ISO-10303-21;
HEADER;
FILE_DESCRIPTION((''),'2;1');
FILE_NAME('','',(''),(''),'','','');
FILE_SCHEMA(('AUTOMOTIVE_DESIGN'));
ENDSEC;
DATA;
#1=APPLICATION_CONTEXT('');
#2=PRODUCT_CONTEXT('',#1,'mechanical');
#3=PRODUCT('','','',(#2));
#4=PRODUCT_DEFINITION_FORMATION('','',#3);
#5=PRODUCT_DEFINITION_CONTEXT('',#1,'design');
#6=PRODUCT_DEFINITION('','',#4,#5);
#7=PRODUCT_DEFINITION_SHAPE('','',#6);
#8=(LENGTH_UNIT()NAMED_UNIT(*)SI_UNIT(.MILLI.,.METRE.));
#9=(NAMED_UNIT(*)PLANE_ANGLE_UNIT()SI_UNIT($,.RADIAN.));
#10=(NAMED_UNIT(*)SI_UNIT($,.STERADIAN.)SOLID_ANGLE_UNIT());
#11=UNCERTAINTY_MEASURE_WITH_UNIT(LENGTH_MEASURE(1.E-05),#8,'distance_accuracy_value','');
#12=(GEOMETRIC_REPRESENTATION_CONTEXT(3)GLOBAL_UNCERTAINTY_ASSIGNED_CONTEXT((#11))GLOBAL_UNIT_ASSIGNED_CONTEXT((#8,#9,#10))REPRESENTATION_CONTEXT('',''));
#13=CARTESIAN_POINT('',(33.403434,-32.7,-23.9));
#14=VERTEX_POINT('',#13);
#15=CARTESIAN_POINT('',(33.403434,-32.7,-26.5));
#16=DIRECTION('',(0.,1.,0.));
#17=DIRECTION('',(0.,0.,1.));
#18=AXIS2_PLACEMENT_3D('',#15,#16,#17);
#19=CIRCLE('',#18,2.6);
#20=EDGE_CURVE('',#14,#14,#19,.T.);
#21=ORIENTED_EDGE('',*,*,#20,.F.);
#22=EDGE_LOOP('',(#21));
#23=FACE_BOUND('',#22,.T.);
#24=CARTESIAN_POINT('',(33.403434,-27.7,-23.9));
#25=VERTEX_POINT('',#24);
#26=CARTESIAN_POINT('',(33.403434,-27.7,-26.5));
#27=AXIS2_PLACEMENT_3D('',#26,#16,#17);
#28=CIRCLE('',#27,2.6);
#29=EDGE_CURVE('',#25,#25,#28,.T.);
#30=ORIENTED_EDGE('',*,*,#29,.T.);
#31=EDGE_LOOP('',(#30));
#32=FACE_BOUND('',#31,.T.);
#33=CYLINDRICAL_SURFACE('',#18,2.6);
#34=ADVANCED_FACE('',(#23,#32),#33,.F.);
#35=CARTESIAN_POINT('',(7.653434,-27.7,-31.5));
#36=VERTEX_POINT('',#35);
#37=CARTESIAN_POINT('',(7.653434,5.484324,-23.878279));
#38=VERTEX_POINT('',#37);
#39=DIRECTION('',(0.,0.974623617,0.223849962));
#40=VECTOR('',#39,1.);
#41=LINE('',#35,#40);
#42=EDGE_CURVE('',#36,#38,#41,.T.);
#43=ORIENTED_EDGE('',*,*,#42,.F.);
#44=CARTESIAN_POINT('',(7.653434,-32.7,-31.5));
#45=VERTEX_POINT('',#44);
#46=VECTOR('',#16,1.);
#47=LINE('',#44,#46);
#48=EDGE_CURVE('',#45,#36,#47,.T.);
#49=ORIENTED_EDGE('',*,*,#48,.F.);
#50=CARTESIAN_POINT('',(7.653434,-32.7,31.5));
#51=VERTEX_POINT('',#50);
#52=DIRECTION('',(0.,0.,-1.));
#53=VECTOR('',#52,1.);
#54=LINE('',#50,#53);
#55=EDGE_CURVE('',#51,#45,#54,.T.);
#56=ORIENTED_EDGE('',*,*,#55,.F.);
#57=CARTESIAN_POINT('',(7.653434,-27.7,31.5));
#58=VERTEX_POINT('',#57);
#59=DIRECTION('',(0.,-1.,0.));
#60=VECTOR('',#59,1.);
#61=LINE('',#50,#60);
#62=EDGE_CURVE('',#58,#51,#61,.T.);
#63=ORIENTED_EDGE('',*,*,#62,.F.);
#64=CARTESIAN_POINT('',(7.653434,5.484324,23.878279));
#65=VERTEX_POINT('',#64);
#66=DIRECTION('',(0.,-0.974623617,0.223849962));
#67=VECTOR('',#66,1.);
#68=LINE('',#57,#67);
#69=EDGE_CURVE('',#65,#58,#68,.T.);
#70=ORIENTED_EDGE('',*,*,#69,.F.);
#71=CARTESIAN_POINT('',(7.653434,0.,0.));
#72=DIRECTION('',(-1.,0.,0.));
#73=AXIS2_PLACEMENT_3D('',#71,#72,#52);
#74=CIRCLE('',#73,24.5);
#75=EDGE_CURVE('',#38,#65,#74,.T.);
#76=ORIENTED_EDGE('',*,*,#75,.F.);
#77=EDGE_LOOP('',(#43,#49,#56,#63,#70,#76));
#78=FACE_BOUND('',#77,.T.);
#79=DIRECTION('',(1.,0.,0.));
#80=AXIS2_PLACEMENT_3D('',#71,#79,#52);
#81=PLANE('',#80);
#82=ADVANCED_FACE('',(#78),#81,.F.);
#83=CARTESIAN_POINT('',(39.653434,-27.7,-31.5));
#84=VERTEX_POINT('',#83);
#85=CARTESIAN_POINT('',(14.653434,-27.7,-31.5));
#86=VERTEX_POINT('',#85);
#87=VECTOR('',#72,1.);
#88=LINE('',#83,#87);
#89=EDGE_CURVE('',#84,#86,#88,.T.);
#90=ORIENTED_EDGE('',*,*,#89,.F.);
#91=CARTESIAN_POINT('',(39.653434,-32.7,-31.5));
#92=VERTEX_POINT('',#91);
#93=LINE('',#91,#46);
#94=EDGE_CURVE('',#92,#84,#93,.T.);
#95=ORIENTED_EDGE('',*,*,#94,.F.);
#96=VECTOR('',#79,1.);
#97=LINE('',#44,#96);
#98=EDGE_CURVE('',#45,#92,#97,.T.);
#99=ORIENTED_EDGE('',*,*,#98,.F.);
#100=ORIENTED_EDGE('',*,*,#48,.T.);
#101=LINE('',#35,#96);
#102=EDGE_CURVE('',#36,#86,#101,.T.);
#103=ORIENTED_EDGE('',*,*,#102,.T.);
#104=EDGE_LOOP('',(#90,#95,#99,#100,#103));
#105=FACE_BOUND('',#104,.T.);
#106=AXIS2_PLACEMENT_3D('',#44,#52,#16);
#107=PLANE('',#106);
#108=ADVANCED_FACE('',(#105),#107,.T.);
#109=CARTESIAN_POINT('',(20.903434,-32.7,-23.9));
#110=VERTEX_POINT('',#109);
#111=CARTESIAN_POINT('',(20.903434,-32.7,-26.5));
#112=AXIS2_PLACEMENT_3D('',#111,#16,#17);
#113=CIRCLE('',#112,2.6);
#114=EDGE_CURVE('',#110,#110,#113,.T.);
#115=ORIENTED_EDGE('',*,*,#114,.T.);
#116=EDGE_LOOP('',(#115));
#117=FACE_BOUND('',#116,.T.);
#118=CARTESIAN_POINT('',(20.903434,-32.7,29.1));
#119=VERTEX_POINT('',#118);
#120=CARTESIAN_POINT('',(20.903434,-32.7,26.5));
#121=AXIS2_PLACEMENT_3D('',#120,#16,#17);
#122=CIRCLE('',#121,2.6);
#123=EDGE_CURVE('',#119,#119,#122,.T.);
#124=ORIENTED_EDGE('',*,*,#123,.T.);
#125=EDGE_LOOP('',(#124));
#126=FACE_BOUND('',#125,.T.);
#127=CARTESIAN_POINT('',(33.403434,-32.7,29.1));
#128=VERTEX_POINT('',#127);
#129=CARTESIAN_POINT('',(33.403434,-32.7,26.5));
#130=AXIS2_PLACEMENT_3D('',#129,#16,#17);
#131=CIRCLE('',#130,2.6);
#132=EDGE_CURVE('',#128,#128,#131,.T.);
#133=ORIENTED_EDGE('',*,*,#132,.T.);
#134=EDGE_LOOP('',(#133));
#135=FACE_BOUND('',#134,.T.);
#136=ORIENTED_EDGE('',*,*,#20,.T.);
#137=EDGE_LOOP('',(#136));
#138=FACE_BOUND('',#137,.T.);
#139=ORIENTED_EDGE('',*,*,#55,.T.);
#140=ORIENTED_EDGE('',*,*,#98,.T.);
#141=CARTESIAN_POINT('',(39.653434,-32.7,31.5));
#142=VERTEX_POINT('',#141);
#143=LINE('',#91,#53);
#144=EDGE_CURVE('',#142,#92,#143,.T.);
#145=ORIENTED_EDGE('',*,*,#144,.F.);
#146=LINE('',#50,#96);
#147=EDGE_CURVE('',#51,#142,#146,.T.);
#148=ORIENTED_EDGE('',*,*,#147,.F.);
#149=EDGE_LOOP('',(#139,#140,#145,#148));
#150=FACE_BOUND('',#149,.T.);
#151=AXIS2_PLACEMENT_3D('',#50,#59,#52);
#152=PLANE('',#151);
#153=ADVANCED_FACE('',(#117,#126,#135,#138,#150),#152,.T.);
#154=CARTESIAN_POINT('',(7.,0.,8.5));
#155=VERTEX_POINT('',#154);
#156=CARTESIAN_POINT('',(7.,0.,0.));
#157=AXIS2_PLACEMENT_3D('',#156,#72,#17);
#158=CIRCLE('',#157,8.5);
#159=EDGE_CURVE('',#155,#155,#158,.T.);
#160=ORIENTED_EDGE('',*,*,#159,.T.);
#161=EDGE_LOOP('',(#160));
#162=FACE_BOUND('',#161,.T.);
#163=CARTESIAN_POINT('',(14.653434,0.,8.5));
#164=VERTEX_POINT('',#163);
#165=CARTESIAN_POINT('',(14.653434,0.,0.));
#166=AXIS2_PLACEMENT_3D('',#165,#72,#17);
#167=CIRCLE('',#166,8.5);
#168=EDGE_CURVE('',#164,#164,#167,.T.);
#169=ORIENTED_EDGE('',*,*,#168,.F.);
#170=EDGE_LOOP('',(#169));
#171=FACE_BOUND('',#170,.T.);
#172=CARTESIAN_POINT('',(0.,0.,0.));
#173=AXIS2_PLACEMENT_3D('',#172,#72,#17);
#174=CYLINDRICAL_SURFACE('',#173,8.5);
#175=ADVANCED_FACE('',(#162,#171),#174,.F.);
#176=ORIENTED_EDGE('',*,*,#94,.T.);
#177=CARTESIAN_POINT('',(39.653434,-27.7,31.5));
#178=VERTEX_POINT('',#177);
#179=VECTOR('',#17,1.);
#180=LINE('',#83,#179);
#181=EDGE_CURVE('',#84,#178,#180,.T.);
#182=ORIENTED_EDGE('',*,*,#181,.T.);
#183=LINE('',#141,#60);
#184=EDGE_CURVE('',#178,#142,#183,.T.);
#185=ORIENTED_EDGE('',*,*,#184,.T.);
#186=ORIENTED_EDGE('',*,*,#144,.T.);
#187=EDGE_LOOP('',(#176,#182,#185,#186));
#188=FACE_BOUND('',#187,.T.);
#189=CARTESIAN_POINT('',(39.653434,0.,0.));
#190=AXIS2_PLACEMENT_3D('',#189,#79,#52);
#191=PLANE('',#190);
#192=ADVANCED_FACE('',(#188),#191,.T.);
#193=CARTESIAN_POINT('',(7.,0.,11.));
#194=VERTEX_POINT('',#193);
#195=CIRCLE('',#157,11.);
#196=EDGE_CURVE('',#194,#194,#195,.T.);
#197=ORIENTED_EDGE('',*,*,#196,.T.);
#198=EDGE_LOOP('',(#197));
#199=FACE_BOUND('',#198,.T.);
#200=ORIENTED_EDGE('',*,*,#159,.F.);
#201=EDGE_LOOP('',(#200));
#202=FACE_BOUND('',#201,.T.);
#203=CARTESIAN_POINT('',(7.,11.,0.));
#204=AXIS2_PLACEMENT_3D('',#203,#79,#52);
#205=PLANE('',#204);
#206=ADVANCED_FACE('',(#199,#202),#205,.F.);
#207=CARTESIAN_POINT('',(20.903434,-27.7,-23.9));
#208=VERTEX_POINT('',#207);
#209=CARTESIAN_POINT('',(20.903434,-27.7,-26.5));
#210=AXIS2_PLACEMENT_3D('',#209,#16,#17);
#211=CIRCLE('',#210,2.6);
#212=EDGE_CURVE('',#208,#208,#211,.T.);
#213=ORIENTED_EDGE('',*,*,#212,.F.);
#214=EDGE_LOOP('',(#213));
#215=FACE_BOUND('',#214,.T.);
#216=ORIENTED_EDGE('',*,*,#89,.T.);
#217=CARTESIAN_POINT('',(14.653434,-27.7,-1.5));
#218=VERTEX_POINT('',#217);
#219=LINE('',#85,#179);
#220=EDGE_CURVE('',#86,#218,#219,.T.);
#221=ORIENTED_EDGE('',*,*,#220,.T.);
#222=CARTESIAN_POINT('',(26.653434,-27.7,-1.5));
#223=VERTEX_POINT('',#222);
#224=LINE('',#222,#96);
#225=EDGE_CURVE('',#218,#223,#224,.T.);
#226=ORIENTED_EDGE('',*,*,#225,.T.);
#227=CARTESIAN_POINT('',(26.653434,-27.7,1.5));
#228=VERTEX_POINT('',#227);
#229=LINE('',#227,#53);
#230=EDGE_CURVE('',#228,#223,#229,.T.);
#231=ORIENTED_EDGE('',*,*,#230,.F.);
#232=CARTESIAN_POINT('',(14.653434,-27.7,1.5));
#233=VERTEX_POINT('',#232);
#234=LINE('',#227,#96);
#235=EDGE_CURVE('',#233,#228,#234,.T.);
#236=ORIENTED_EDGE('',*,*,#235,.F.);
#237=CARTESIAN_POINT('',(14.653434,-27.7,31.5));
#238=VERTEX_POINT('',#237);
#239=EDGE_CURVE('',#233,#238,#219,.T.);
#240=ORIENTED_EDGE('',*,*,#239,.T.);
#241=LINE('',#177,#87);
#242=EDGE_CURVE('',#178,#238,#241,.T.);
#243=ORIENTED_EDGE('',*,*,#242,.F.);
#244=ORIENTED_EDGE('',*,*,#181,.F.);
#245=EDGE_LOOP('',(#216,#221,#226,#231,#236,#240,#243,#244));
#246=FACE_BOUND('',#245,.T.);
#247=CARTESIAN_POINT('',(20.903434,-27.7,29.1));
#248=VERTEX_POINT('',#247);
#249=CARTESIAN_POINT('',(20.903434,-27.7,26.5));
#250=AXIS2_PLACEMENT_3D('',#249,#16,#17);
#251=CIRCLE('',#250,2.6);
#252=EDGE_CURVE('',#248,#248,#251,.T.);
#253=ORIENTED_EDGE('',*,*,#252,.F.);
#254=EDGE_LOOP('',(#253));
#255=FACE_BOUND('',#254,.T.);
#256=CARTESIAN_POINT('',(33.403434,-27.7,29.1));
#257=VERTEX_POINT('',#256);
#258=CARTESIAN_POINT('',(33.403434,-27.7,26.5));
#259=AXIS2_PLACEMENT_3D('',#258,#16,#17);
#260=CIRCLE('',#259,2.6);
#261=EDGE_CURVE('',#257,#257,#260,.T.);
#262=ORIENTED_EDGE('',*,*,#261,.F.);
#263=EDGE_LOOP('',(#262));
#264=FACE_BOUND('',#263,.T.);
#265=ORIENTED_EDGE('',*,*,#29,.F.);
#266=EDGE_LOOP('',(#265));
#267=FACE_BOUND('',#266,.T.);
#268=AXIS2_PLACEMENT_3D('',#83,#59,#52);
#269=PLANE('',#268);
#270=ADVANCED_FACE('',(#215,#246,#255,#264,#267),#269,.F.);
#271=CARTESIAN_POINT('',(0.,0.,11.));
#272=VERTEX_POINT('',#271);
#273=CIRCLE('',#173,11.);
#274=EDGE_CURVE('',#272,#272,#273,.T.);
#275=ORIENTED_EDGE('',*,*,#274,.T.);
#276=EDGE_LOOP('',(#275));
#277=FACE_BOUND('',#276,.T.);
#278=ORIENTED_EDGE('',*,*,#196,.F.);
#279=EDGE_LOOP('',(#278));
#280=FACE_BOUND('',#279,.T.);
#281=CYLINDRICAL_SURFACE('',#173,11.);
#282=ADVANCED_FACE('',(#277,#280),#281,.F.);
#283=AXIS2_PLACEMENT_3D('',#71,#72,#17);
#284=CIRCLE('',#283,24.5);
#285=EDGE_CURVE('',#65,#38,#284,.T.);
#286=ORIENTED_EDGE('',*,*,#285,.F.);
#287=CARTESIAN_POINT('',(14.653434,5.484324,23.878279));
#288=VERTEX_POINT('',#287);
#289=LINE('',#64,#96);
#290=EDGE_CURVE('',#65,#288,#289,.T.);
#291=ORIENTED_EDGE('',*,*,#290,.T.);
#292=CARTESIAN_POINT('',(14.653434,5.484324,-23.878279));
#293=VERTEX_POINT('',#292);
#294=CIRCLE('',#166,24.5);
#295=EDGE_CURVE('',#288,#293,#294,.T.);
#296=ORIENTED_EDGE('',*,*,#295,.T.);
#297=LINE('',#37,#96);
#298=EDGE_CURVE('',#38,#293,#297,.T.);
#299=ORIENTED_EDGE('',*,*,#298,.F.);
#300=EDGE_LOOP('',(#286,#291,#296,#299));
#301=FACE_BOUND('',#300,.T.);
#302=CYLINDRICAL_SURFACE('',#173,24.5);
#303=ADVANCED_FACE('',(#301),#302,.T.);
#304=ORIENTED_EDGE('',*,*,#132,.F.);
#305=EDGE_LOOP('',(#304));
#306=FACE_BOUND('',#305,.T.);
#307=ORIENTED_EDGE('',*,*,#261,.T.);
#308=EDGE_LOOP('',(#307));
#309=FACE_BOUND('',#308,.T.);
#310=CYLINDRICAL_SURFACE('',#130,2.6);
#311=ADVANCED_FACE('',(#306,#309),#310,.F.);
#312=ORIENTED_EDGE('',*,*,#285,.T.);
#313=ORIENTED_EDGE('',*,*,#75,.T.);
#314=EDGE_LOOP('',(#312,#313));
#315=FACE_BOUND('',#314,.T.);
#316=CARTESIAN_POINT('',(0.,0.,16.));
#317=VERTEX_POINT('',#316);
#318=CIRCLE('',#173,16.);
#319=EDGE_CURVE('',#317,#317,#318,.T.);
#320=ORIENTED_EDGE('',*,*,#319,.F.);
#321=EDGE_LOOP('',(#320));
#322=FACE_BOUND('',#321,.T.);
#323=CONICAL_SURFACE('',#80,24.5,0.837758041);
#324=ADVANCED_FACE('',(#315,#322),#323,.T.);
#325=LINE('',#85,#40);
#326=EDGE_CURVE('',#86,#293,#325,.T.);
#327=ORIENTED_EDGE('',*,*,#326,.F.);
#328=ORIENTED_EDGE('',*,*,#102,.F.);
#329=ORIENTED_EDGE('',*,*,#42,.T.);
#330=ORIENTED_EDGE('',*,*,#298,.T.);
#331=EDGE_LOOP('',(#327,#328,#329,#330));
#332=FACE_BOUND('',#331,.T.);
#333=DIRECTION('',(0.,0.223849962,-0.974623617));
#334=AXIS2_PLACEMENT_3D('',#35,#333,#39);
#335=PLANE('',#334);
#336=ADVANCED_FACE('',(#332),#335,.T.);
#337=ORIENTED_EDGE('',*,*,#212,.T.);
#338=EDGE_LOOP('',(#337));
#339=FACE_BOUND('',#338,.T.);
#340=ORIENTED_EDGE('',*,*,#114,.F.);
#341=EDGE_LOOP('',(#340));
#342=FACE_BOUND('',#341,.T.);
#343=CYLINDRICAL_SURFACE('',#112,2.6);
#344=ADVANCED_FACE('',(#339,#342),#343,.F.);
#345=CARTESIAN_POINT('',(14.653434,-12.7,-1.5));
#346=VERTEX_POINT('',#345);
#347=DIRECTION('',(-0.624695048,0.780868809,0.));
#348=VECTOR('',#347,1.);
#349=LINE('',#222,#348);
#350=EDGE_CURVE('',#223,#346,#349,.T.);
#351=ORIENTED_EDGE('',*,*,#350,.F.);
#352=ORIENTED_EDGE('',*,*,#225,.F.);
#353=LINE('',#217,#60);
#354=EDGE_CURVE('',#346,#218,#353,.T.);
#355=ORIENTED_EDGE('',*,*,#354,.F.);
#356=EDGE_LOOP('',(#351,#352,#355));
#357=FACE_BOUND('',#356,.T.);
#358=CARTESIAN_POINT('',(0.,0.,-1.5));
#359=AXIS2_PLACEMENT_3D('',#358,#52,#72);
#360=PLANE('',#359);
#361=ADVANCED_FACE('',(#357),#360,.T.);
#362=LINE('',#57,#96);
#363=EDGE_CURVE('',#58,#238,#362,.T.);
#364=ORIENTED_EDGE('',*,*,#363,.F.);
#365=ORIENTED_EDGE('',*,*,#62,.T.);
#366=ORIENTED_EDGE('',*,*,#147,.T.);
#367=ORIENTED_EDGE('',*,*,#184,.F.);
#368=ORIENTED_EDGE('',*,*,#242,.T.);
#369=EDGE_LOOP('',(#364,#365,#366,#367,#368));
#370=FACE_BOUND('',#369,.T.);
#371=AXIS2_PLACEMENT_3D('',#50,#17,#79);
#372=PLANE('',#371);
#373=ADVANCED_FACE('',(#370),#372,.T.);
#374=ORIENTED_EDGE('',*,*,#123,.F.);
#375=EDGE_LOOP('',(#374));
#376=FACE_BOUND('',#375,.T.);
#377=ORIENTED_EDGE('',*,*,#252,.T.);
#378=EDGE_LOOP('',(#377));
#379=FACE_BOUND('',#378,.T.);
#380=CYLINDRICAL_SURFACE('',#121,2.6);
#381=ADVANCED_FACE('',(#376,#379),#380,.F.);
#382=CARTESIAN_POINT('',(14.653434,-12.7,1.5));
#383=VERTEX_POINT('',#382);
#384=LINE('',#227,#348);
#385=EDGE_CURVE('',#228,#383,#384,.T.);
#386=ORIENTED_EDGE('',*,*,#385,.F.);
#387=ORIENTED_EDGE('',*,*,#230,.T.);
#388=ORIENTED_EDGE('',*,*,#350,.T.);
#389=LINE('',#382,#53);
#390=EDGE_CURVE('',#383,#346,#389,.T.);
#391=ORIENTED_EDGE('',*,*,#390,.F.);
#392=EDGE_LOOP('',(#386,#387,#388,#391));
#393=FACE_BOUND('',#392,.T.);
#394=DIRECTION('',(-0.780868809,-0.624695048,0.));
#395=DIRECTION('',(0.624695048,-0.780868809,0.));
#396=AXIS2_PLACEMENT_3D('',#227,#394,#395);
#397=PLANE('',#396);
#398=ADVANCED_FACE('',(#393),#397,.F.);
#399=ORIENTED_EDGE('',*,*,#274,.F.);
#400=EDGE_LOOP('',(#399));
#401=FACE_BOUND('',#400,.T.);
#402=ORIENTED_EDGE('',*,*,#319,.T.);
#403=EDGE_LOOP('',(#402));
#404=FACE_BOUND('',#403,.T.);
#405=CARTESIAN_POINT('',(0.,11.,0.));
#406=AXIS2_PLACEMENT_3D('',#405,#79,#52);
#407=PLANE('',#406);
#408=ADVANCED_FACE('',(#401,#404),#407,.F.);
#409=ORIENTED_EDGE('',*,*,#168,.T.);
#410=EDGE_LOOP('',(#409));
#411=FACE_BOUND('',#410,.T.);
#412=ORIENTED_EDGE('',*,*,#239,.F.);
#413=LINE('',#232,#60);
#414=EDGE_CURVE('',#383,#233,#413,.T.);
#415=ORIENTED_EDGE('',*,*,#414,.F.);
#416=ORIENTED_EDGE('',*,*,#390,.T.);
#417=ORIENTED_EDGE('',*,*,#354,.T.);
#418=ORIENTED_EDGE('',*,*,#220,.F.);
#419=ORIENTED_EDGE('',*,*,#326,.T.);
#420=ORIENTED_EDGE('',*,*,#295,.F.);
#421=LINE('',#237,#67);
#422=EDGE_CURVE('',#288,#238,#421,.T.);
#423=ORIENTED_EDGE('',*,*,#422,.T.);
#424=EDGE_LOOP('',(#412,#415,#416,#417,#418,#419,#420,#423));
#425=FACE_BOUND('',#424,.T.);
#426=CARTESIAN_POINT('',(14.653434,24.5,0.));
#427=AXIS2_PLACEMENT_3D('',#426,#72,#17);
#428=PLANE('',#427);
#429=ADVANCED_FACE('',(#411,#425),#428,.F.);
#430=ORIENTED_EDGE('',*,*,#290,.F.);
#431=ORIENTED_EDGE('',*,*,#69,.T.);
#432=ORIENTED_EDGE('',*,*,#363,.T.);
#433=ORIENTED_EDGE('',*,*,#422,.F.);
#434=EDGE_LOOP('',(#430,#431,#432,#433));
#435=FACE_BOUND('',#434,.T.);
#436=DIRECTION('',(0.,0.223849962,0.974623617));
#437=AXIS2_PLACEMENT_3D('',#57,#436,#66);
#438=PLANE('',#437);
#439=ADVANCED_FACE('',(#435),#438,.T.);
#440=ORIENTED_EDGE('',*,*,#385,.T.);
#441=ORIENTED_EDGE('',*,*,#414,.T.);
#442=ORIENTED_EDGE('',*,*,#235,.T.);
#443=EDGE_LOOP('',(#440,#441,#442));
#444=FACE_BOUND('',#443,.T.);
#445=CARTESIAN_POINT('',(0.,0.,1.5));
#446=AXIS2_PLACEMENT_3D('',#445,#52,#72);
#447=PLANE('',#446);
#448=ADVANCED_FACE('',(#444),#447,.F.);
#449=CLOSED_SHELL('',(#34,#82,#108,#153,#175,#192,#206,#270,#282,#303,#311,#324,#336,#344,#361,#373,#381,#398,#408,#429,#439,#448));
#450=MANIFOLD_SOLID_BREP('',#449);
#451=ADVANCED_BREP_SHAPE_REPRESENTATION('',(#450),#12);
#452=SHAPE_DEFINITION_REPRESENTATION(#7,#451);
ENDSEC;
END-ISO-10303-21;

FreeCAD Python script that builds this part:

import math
import FreeCAD as App
import Part
import Sketcher
Q = App.Units.Quantity


def add_polygon(sketch, points):
    """Adds a closed chain of lines whose ends are joined by coincident constraints."""
    first, n = sketch.GeometryCount, len(points)
    for a, b in zip(points, points[1:] + points[:1]):
        sketch.addGeometry(Part.LineSegment(App.Vector(*a, 0), App.Vector(*b, 0)), False)
    for i in range(n):
        sketch.addConstraint(Sketcher.Constraint("Coincident", first + i, 2, first + (i + 1) % n, 1))

doc = App.newDocument("Part")
body = doc.addObject("PartDesign::Body", "Body")

sketch1 = body.newObject("Sketcher::SketchObject", "Sketch")
sketch1.AttachmentSupport = (doc.getObject("XY_Plane"), [""])
sketch1.MapMode = "FlatFace"
add_polygon(sketch1, [(0, 11), (7, 11), (7, 8.5), (14.653434, 8.5), (14.653434, 24.5), (7.653434, 24.5), (0, 16)])
sketch1.addConstraint([
    Sketcher.Constraint("Horizontal", 0),
    Sketcher.Constraint("Vertical", 1),
    Sketcher.Constraint("Horizontal", 2),
    Sketcher.Constraint("Vertical", 3),
    Sketcher.Constraint("Horizontal", 4),
    Sketcher.Constraint("Vertical", 6),
    Sketcher.Constraint("PointOnObject", 5, 2, -2),
    Sketcher.Constraint("Equal", 0, 4),
    Sketcher.Constraint("DistanceX", 0, 1, 0, 2, 7.0),
    Sketcher.Constraint("DistanceY", 3, 1, 3, 2, 16.0),
    Sketcher.Constraint("DistanceY", 6, 2, 6, 1, 5.0),
    Sketcher.Constraint("Angle", 5, Q("-132 deg")),
    Sketcher.Constraint("DistanceY", 1, 2, 1, 1, 2.5),
    Sketcher.Constraint("DistanceY", -1, 1, 0, 2, 11.0),
])
revolution = body.newObject("PartDesign::Revolution", "Revolution")
revolution.Profile = sketch1
revolution.ReferenceAxis = (sketch1, ["H_Axis"])
revolution.Angle = 360

sketch2 = body.newObject("Sketcher::SketchObject", "Sketch001")
sketch2.AttachmentSupport = (doc.getObject("YZ_Plane"), [""])
sketch2.MapMode = "FlatFace"
sketch2.AttachmentOffset = App.Placement(App.Vector(0, 0, 7.653434), App.Rotation())
sketch2.addGeometry([
    Part.LineSegment(App.Vector(-32.7, 31.5, 0), App.Vector(-32.7, -31.5, 0)),
    Part.LineSegment(App.Vector(-32.7, -31.5, 0), App.Vector(-27.7, -31.5, 0)),
    Part.LineSegment(App.Vector(-27.7, -31.5, 0), App.Vector(5.484324, -23.878279, 0)),
    Part.ArcOfCircle(Part.Circle(App.Vector(0, 0, 0), App.Vector(0, 0, 1), 24.5), math.radians(77.064739), math.radians(282.935261)),
    Part.LineSegment(App.Vector(5.484324, 23.878279, 0), App.Vector(-27.7, 31.5, 0)),
    Part.LineSegment(App.Vector(-27.7, 31.5, 0), App.Vector(-32.7, 31.5, 0)),
], False)
sketch2.addConstraint([
    Sketcher.Constraint("Coincident", 0, 2, 1, 1),
    Sketcher.Constraint("Coincident", 1, 2, 2, 1),
    Sketcher.Constraint("Tangent", 2, 2, 3, 2),
    Sketcher.Constraint("Tangent", 3, 1, 4, 1),
    Sketcher.Constraint("Coincident", 4, 2, 5, 1),
    Sketcher.Constraint("Coincident", 5, 2, 0, 1),
    Sketcher.Constraint("Vertical", 0),
    Sketcher.Constraint("Horizontal", 1),
    Sketcher.Constraint("Horizontal", 5),
    Sketcher.Constraint("Coincident", 3, 3, -1, 1),
    Sketcher.Constraint("Symmetric", 1, 2, 4, 2, -1),
    Sketcher.Constraint("Radius", 3, 24.5),
    Sketcher.Constraint("DistanceX", 1, 1, 1, 2, 5.0),
    Sketcher.Constraint("DistanceY", 0, 2, 0, 1, 63.0),
    Sketcher.Constraint("DistanceX", 0, 2, -1, 1, 32.7),
])
pad1 = body.newObject("PartDesign::Pad", "Pad")
pad1.Profile = sketch2
pad1.Length = 7

sketch3 = body.newObject("Sketcher::SketchObject", "Sketch002")
sketch3.AttachmentSupport = (doc.getObject("YZ_Plane"), [""])
sketch3.MapMode = "FlatFace"
sketch3.AttachmentOffset = App.Placement(App.Vector(0, 0, 14.653434), App.Rotation())
add_polygon(sketch3, [(-27.7, 31.5), (-32.7, 31.5), (-32.7, -31.5), (-27.7, -31.5)])
sketch3.addConstraint([
    Sketcher.Constraint("Horizontal", 0),
    Sketcher.Constraint("Vertical", 1),
    Sketcher.Constraint("Horizontal", 2),
    Sketcher.Constraint("Vertical", 3),
    Sketcher.Constraint("DistanceX", 0, 2, 0, 1, 5.0),
    Sketcher.Constraint("DistanceY", 1, 2, 1, 1, 63.0),
    Sketcher.Constraint("DistanceX", 0, 2, -1, 1, 32.7),
    Sketcher.Constraint("DistanceY", -1, 1, 0, 2, 31.5),
])
pad2 = body.newObject("PartDesign::Pad", "Pad001")
pad2.Profile = sketch3
pad2.Length = 25

sketch4 = body.newObject("Sketcher::SketchObject", "Sketch003")
sketch4.AttachmentSupport = (doc.getObject("XZ_Plane"), [""])
sketch4.MapMode = "FlatFace"
sketch4.AttachmentOffset = App.Placement(App.Vector(0, 0, 27.7), App.Rotation())
sketch4.addGeometry([
    Part.Circle(App.Vector(20.903434, -26.5, 0), App.Vector(0, 0, 1), 2.6),
    Part.Circle(App.Vector(33.403434, -26.5, 0), App.Vector(0, 0, 1), 2.6),
    Part.Circle(App.Vector(33.403434, 26.5, 0), App.Vector(0, 0, 1), 2.6),
    Part.Circle(App.Vector(20.903434, 26.5, 0), App.Vector(0, 0, 1), 2.6),
], False)
sketch4.addConstraint([
    Sketcher.Constraint("Equal", 0, 1),
    Sketcher.Constraint("Equal", 1, 2),
    Sketcher.Constraint("Equal", 2, 3),
    Sketcher.Constraint("Symmetric", 1, 3, 2, 3, -1),
    Sketcher.Constraint("Symmetric", 0, 3, 3, 3, -1),
    Sketcher.Constraint("Horizontal", 0, 3, 1, 3),
    Sketcher.Constraint("Diameter", 0, 5.2),
    Sketcher.Constraint("DistanceY", 1, 3, 2, 3, 53.0),
    Sketcher.Constraint("DistanceX", 0, 3, 1, 3, 12.5),
    Sketcher.Constraint("DistanceX", -1, 1, 0, 3, 20.903434),
])
pocket1 = body.newObject("PartDesign::Pocket", "Pocket")
pocket1.Profile = sketch4
pocket1.Type = "ThroughAll"
pocket1.Reversed = True

sketch5 = body.newObject("Sketcher::SketchObject", "Sketch004")
sketch5.AttachmentSupport = (doc.getObject("XY_Plane"), [""])
sketch5.MapMode = "FlatFace"
add_polygon(sketch5, [(26.653434, -27.7), (14.653434, -12.7), (14.653434, -27.7)])
sketch5.addConstraint([
    Sketcher.Constraint("Vertical", 1),
    Sketcher.Constraint("Horizontal", 2),
    Sketcher.Constraint("DistanceX", 2, 1, 2, 2, 12.0),
    Sketcher.Constraint("DistanceY", 1, 2, 1, 1, 15.0),
    Sketcher.Constraint("DistanceY", 0, 2, -1, 1, 12.7),
    Sketcher.Constraint("DistanceX", -1, 1, 0, 2, 14.653434),
])
pad3 = body.newObject("PartDesign::Pad", "Pad002")
pad3.Profile = sketch5
pad3.Length = 3
pad3.Midplane = True

doc.recompute()
